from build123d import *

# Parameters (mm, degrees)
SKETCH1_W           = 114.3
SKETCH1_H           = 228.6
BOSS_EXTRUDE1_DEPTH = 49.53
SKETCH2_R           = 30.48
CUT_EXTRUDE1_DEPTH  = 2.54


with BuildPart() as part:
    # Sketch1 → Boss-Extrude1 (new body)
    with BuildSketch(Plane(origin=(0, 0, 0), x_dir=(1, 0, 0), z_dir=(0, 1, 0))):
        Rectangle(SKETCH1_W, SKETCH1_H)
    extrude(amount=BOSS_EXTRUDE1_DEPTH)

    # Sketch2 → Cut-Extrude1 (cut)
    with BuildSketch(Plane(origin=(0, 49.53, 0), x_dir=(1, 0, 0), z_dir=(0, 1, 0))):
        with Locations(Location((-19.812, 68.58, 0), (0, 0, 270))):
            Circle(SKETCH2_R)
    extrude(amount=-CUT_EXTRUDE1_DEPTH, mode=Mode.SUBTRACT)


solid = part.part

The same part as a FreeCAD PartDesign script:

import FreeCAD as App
import Part
import Sketcher

V = App.Vector
Q = App.Units.Quantity


def add_polygon(sketch, points):
    """Adds a closed chain of lines whose ends are joined by coincident constraints."""
    first, n = sketch.GeometryCount, len(points)
    for a, b in zip(points, points[1:] + points[:1]):
        sketch.addGeometry(Part.LineSegment(App.Vector(*a, 0), App.Vector(*b, 0)), False)
    for i in range(n):
        sketch.addConstraint(Sketcher.Constraint("Coincident", first + i, 2, first + (i + 1) % n, 1))

doc = App.newDocument("Part")
body = doc.addObject("PartDesign::Body", "Body")

# Sketch on XZ plane
sketch1 = doc.addObject("Sketcher::SketchObject", "Sketch")
body.addObject(sketch1)
sketch1.AttachmentSupport = (doc.XZ_Plane, [""])
sketch1.MapMode = "FlatFace"
add_polygon(sketch1, [(-57, -114), (-57, 114), (57, 114), (57, -114)])  # lines 0-3
sketch1.addConstraint(Sketcher.Constraint("Vertical", 0))
sketch1.addConstraint(Sketcher.Constraint("Horizontal", 1))
sketch1.addConstraint(Sketcher.Constraint("Vertical", 2))
sketch1.addConstraint(Sketcher.Constraint("Horizontal", 3))
sketch1.addConstraint(Sketcher.Constraint("Symmetric", 0, 2, 2, 2, -1, 1))
sketch1.addConstraint(Sketcher.Constraint("DistanceY", 0, 1, 0, 2, Q("9 in")))
sketch1.addConstraint(Sketcher.Constraint("DistanceX", 1, 1, 1, 2, Q("4.5 in")))
pad1 = doc.addObject("PartDesign::Pad", "Pad")
body.addObject(pad1)
pad1.Profile = sketch1
pad1.Length = Q("1.95 in")
pad1.Reversed = True

# Sketch on XZ plane
sketch2 = doc.addObject("Sketcher::SketchObject", "Sketch001")
body.addObject(sketch2)
sketch2.AttachmentSupport = (doc.XZ_Plane, [""])
sketch2.MapMode = "FlatFace"
sketch2.AttachmentOffset = App.Placement(V(0, 0, -1.95 * 25.4), App.Rotation())
sketch2.addGeometry(Part.Circle(V(-20, -69, 0), V(0, 0, 1), 30), False)
sketch2.addConstraint(Sketcher.Constraint("Diameter", 0, Q("2.4 in")))
sketch2.addConstraint(Sketcher.Constraint("DistanceY", 0, 3, -1, 1, Q("2.7 in")))
sketch2.addConstraint(Sketcher.Constraint("DistanceX", 0, 3, -1, 1, Q("0.78 in")))
pocket1 = doc.addObject("PartDesign::Pocket", "Pocket")
body.addObject(pocket1)
pocket1.Profile = sketch2
pocket1.Length = Q("0.1 in")
pocket1.Reversed = True

doc.recompute()
